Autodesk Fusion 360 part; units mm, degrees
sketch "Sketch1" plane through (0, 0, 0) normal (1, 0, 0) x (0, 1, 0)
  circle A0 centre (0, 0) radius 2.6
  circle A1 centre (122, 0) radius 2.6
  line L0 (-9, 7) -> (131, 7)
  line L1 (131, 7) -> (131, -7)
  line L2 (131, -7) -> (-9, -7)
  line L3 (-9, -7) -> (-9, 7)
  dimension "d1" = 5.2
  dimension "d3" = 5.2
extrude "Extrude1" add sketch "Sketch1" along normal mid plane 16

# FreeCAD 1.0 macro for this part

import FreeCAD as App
import Part
import Sketcher

V = App.Vector
Q = App.Units.Quantity

doc = App.newDocument("Part")
body = doc.addObject("PartDesign::Body", "Body")

sketch1 = doc.addObject("Sketcher::SketchObject", "Sketch")
body.addObject(sketch1)
sketch1.AttachmentSupport = (doc.YZ_Plane, [""])
sketch1.MapMode = "FlatFace"
sketch1.addGeometry([
    Part.LineSegment(V(131, 7, 0), V(-9, 7, 0)),
    Part.LineSegment(V(-9, 7, 0), V(-9, -7, 0)),
    Part.LineSegment(V(-9, -7, 0), V(131, -7, 0)),
    Part.LineSegment(V(131, -7, 0), V(131, 7, 0)),
    Part.Circle(V(0, 0, 0), V(0, 0, 1), 2.6),
    Part.Circle(V(122, 0, 0), V(0, 0, 1), 2.6),
], False)
sketch1.addConstraint([
    Sketcher.Constraint("Coincident", 0, 2, 1, 1),
    Sketcher.Constraint("Coincident", 1, 2, 2, 1),
    Sketcher.Constraint("Coincident", 2, 2, 3, 1),
    Sketcher.Constraint("Coincident", 3, 2, 0, 1),
    Sketcher.Constraint("Horizontal", 0),
    Sketcher.Constraint("Vertical", 1),
    Sketcher.Constraint("Horizontal", 2),
    Sketcher.Constraint("Vertical", 3),
    Sketcher.Constraint("Coincident", 4, 3, -1, 1),
    Sketcher.Constraint("Equal", 4, 5),
    Sketcher.Constraint("PointOnObject", 5, 3, -1),
    Sketcher.Constraint("Diameter", 4, Q("5.2 mm")),
    Sketcher.Constraint("DistanceX", 0, 2, 0, 1, Q("140 mm")),
    Sketcher.Constraint("DistanceY", 1, 2, 1, 1, Q("14 mm")),
    Sketcher.Constraint("DistanceX", -1, 1, 5, 3, Q("122 mm")),
    Sketcher.Constraint("DistanceX", 0, 2, -1, 1, Q("9 mm")),
    Sketcher.Constraint("DistanceY", -1, 1, 0, 2, Q("7 mm")),
])
pad1 = doc.addObject("PartDesign::Pad", "Pad")
body.addObject(pad1)
pad1.Profile = sketch1
pad1.Length = 16
pad1.Midplane = True

doc.recompute()
